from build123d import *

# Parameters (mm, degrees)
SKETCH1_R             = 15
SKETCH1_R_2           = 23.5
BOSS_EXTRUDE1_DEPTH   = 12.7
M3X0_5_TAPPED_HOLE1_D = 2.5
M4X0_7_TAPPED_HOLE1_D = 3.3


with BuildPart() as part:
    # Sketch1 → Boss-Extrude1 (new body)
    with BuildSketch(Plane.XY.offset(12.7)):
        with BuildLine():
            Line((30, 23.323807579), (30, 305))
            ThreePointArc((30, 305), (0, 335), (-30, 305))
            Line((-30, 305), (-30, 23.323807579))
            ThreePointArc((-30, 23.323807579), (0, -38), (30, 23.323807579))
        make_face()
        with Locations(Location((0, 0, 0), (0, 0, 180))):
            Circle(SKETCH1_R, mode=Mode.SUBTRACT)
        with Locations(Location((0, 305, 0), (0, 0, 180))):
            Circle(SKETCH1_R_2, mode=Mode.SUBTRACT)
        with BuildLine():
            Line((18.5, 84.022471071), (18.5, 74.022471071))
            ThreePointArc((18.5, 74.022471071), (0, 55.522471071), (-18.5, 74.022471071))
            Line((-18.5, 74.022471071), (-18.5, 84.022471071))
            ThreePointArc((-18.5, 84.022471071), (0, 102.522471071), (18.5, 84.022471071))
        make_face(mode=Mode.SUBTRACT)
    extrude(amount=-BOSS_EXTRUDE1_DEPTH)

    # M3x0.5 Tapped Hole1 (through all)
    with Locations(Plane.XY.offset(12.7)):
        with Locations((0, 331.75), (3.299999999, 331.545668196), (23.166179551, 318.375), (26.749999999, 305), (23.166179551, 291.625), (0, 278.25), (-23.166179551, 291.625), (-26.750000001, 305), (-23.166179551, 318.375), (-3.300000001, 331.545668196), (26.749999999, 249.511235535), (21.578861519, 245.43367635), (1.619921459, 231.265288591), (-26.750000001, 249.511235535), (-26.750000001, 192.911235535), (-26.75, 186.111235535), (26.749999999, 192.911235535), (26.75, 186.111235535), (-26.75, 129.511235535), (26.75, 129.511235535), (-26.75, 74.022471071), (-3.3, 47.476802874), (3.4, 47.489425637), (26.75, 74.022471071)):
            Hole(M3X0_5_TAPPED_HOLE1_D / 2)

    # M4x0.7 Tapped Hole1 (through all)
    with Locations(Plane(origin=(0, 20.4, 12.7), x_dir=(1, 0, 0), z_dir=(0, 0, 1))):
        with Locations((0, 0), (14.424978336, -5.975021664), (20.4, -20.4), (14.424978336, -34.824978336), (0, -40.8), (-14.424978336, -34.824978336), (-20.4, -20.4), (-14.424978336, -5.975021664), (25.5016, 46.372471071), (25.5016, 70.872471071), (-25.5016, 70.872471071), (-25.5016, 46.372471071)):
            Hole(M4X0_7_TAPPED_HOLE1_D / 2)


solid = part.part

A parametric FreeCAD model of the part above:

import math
import FreeCAD as App
import Part
import Sketcher
Q = App.Units.Quantity

doc = App.newDocument("Part")
body = doc.addObject("PartDesign::Body", "Body")

# Sketch on XY plane
sketch1 = doc.addObject("Sketcher::SketchObject", "Sketch")
body.addObject(sketch1)
sketch1.AttachmentSupport = (doc.XY_Plane, [""])
sketch1.MapMode = "FlatFace"
sketch1.AttachmentOffset = App.Placement(App.Vector(0, 0, 12.7), App.Rotation())
sketch1.addGeometry(Part.LineSegment(App.Vector(30, 23, 0), App.Vector(30, 305, 0)), False)
sketch1.addGeometry(Part.ArcOfCircle(Part.Circle(App.Vector(0, 305, 0), App.Vector(0, 0, 1), 30), math.radians(0), math.radians(180)), False)
sketch1.addGeometry(Part.LineSegment(App.Vector(-30, 305, 0), App.Vector(-30, 23, 0)), False)
sketch1.addGeometry(Part.ArcOfCircle(Part.Circle(App.Vector(0, 0, 0), App.Vector(0, 0, 1), 38), math.radians(142), math.radians(398)), False)
sketch1.addGeometry(Part.Circle(App.Vector(0, 0, 0), App.Vector(0, 0, 1), 15), False)
sketch1.addGeometry(Part.ArcOfCircle(Part.Circle(App.Vector(0, 84, 0), App.Vector(0, 0, 1), 18), math.radians(0), math.radians(180)), False)
sketch1.addGeometry(Part.LineSegment(App.Vector(18, 84, 0), App.Vector(18, 74, 0)), False)
sketch1.addGeometry(Part.ArcOfCircle(Part.Circle(App.Vector(0, 74, 0), App.Vector(0, 0, 1), 18), math.radians(180), math.radians(360)), False)
sketch1.addGeometry(Part.LineSegment(App.Vector(-18, 74, 0), App.Vector(-18, 84, 0)), False)
sketch1.addGeometry(Part.Circle(App.Vector(0, 305, 0), App.Vector(0, 0, 1), 24), False)
sketch1.addConstraint(Sketcher.Constraint("Tangent", 0, 2, 1, 1))
sketch1.addConstraint(Sketcher.Constraint("Tangent", 1, 2, 2, 1))
sketch1.addConstraint(Sketcher.Constraint("Coincident", 2, 2, 3, 1))
sketch1.addConstraint(Sketcher.Constraint("Coincident", 3, 2, 0, 1))
sketch1.addConstraint(Sketcher.Constraint("Tangent", 5, 1, 6, 1))
sketch1.addConstraint(Sketcher.Constraint("Tangent", 6, 2, 7, 2))
sketch1.addConstraint(Sketcher.Constraint("Tangent", 7, 1, 8, 1))
sketch1.addConstraint(Sketcher.Constraint("Tangent", 8, 2, 5, 2))
sketch1.addConstraint(Sketcher.Constraint("Vertical", 0))
sketch1.addConstraint(Sketcher.Constraint("Vertical", 2))
sketch1.addConstraint(Sketcher.Constraint("Vertical", 6))
sketch1.addConstraint(Sketcher.Constraint("Vertical", 8))
sketch1.addConstraint(Sketcher.Constraint("Coincident", 3, 3, -1, 1))
sketch1.addConstraint(Sketcher.Constraint("Coincident", 4, 3, -1, 1))
sketch1.addConstraint(Sketcher.Constraint("Coincident", 9, 3, 1, 3))
sketch1.addConstraint(Sketcher.Constraint("PointOnObject", 1, 3, -2))
sketch1.addConstraint(Sketcher.Constraint("PointOnObject", 5, 3, -2))
sketch1.addConstraint(Sketcher.Constraint("Diameter", 4, Q("30 mm")))
sketch1.addConstraint(Sketcher.Constraint("Diameter", 9, Q("47 mm")))
sketch1.addConstraint(Sketcher.Constraint("Radius", 1, Q("30 mm")))
sketch1.addConstraint(Sketcher.Constraint("Radius", 3, Q("38 mm")))
sketch1.addConstraint(Sketcher.Constraint("Radius", 5, Q("18.5 mm")))
sketch1.addConstraint(Sketcher.Constraint("DistanceY", 6, 2, 6, 1, Q("10 mm")))
sketch1.addConstraint(Sketcher.Constraint("DistanceY", -1, 1, 1, 3, Q("305 mm")))
sketch1.addConstraint(Sketcher.Constraint("DistanceY", -1, 1, 5, 3, Q("84.022471 mm")))
pad1 = doc.addObject("PartDesign::Pad", "Pad")
body.addObject(pad1)
pad1.Profile = sketch1
pad1.Length = 12.7
pad1.Reversed = True

# Sketch on XY plane
sketch2 = doc.addObject("Sketcher::SketchObject", "Sketch001")
body.addObject(sketch2)
sketch2.AttachmentSupport = (doc.XY_Plane, [""])
sketch2.MapMode = "FlatFace"
sketch2.AttachmentOffset = App.Placement(App.Vector(0, 0, 12.7), App.Rotation())
sketch2.addGeometry(Part.Circle(App.Vector(0, 331.8, 0), App.Vector(0, 0, 1), 1.2), False)
sketch2.addGeometry(Part.Circle(App.Vector(3.3, 331.5, 0), App.Vector(0, 0, 1), 1.2), False)
sketch2.addGeometry(Part.Circle(App.Vector(23.2, 318.4, 0), App.Vector(0, 0, 1), 1.2), False)
sketch2.addGeometry(Part.Circle(App.Vector(26.7, 305, 0), App.Vector(0, 0, 1), 1.2), False)
sketch2.addGeometry(Part.Circle(App.Vector(23.2, 291.6, 0), App.Vector(0, 0, 1), 1.2), False)
sketch2.addGeometry(Part.Circle(App.Vector(0, 278.2, 0), App.Vector(0, 0, 1), 1.2), False)
sketch2.addGeometry(Part.Circle(App.Vector(-23.2, 291.6, 0), App.Vector(0, 0, 1), 1.2), False)
sketch2.addGeometry(Part.Circle(App.Vector(-26.8, 305, 0), App.Vector(0, 0, 1), 1.2), False)
sketch2.addGeometry(Part.Circle(App.Vector(-23.2, 318.4, 0), App.Vector(0, 0, 1), 1.2), False)
sketch2.addGeometry(Part.Circle(App.Vector(-3.3, 331.5, 0), App.Vector(0, 0, 1), 1.2), False)
sketch2.addGeometry(Part.Circle(App.Vector(26.7, 249.5, 0), App.Vector(0, 0, 1), 1.2), False)
sketch2.addGeometry(Part.Circle(App.Vector(21.6, 245.4, 0), App.Vector(0, 0, 1), 1.2), False)
sketch2.addGeometry(Part.Circle(App.Vector(1.6, 231.3, 0), App.Vector(0, 0, 1), 1.2), False)
sketch2.addGeometry(Part.Circle(App.Vector(-26.8, 249.5, 0), App.Vector(0, 0, 1), 1.2), False)
sketch2.addGeometry(Part.Circle(App.Vector(-26.8, 192.9, 0), App.Vector(0, 0, 1), 1.2), False)
sketch2.addGeometry(Part.Circle(App.Vector(-26.8, 186.1, 0), App.Vector(0, 0, 1), 1.2), False)
sketch2.addGeometry(Part.Circle(App.Vector(26.7, 192.9, 0), App.Vector(0, 0, 1), 1.2), False)
sketch2.addGeometry(Part.Circle(App.Vector(26.8, 186.1, 0), App.Vector(0, 0, 1), 1.2), False)
sketch2.addGeometry(Part.Circle(App.Vector(-26.8, 129.5, 0), App.Vector(0, 0, 1), 1.2), False)
sketch2.addGeometry(Part.Circle(App.Vector(26.8, 129.5, 0), App.Vector(0, 0, 1), 1.2), False)
sketch2.addGeometry(Part.Circle(App.Vector(-26.8, 74, 0), App.Vector(0, 0, 1), 1.2), False)
sketch2.addGeometry(Part.Circle(App.Vector(-3.3, 47.5, 0), App.Vector(0, 0, 1), 1.2), False)
sketch2.addGeometry(Part.Circle(App.Vector(3.4, 47.5, 0), App.Vector(0, 0, 1), 1.2), False)
sketch2.addGeometry(Part.Circle(App.Vector(26.8, 74, 0), App.Vector(0, 0, 1), 1.2), False)
sketch2.addConstraint(Sketcher.Constraint("Equal", 0, 1))
sketch2.addConstraint(Sketcher.Constraint("Equal", 1, 2))
sketch2.addConstraint(Sketcher.Constraint("Equal", 2, 3))
sketch2.addConstraint(Sketcher.Constraint("Equal", 3, 4))
sketch2.addConstraint(Sketcher.Constraint("Equal", 4, 5))
sketch2.addConstraint(Sketcher.Constraint("Equal", 5, 6))
sketch2.addConstraint(Sketcher.Constraint("Equal", 6, 7))
sketch2.addConstraint(Sketcher.Constraint("Equal", 7, 8))
sketch2.addConstraint(Sketcher.Constraint("Equal", 8, 9))
sketch2.addConstraint(Sketcher.Constraint("Equal", 9, 10))
sketch2.addConstraint(Sketcher.Constraint("Equal", 10, 11))
sketch2.addConstraint(Sketcher.Constraint("Equal", 11, 12))
sketch2.addConstraint(Sketcher.Constraint("Equal", 12, 13))
sketch2.addConstraint(Sketcher.Constraint("Equal", 13, 14))
sketch2.addConstraint(Sketcher.Constraint("Equal", 14, 15))
sketch2.addConstraint(Sketcher.Constraint("Equal", 15, 16))
sketch2.addConstraint(Sketcher.Constraint("Equal", 16, 17))
sketch2.addConstraint(Sketcher.Constraint("Equal", 17, 18))
sketch2.addConstraint(Sketcher.Constraint("Equal", 18, 19))
sketch2.addConstraint(Sketcher.Constraint("Equal", 19, 20))
sketch2.addConstraint(Sketcher.Constraint("Equal", 20, 21))
sketch2.addConstraint(Sketcher.Constraint("Equal", 21, 22))
sketch2.addConstraint(Sketcher.Constraint("Equal", 22, 23))
sketch2.addConstraint(Sketcher.Constraint("Symmetric", 4, 3, 6, 3, -2))
sketch2.addConstraint(Sketcher.Constraint("Symmetric", 3, 3, 7, 3, -2))
sketch2.addConstraint(Sketcher.Constraint("Symmetric", 2, 3, 8, 3, -2))
sketch2.addConstraint(Sketcher.Constraint("Symmetric", 1, 3, 9, 3, -2))
sketch2.addConstraint(Sketcher.Constraint("Symmetric", 10, 3, 13, 3, -2))
sketch2.addConstraint(Sketcher.Constraint("Symmetric", 14, 3, 16, 3, -2))
sketch2.addConstraint(Sketcher.Constraint("Symmetric", 15, 3, 17, 3, -2))
sketch2.addConstraint(Sketcher.Constraint("Symmetric", 18, 3, 19, 3, -2))
sketch2.addConstraint(Sketcher.Constraint("Symmetric", 20, 3, 23, 3, -2))
sketch2.addConstraint(Sketcher.Constraint("PointOnObject", 0, 3, -2))
sketch2.addConstraint(Sketcher.Constraint("PointOnObject", 5, 3, -2))
sketch2.addConstraint(Sketcher.Constraint("Vertical", 2, 3, 4, 3))
sketch2.addConstraint(Sketcher.Constraint("Vertical", 3, 3, 10, 3))
sketch2.addConstraint(Sketcher.Constraint("Vertical", 13, 3, 14, 3))
sketch2.addConstraint(Sketcher.Constraint("Vertical", 14, 3, 15, 3))
sketch2.addConstraint(Sketcher.Constraint("Vertical", 15, 3, 18, 3))
sketch2.addConstraint(Sketcher.Constraint("Vertical", 18, 3, 20, 3))
sketch2.addConstraint(Sketcher.Constraint("Vertical", 9, 3, 21, 3))
sketch2.addConstraint(Sketcher.Constraint("Diameter", 0, Q("2.5 mm")))
sketch2.addConstraint(Sketcher.Constraint("DistanceY", -1, 1, 3, 3, Q("305 mm")))
sketch2.addConstraint(Sketcher.Constraint("DistanceX", -1, 1, 1, 3, Q("3.3 mm")))
sketch2.addConstraint(Sketcher.Constraint("DistanceX", -1, 1, 22, 3, Q("3.4 mm")))
sketch2.addConstraint(Sketcher.Constraint("DistanceY", 5, 3, 0, 3, Q("53.5 mm")))
sketch2.addConstraint(Sketcher.Constraint("DistanceX", 13, 3, 10, 3, Q("53.5 mm")))
sketch2.addConstraint(Sketcher.Constraint("DistanceY", 14, 3, 13, 3, Q("56.6 mm")))
sketch2.addConstraint(Sketcher.Constraint("DistanceY", 15, 3, 14, 3, Q("6.8 mm")))
sketch2.addConstraint(Sketcher.Constraint("DistanceY", 18, 3, 15, 3, Q("56.6 mm")))
sketch2.addConstraint(Sketcher.Constraint("DistanceY", -1, 1, 0, 3, Q("331.75 mm")))
sketch2.addConstraint(Sketcher.Constraint("DistanceY", 4, 3, 2, 3, Q("26.75 mm")))
sketch2.addConstraint(Sketcher.Constraint("DistanceY", -1, 1, 2, 3, Q("318.375 mm")))
sketch2.addConstraint(Sketcher.Constraint("DistanceX", 6, 3, 12, 3, Q("24.786101 mm")))
sketch2.addConstraint(Sketcher.Constraint("DistanceY", -1, 1, 1, 3, Q("331.545668 mm")))
sketch2.addConstraint(Sketcher.Constraint("DistanceX", -1, 1, 2, 3, Q("23.16618 mm")))
sketch2.addConstraint(Sketcher.Constraint("DistanceX", -1, 1, 11, 3, Q("21.578862 mm")))
sketch2.addConstraint(Sketcher.Constraint("DistanceY", -1, 1, 12, 3, Q("231.265289 mm")))
sketch2.addConstraint(Sketcher.Constraint("DistanceY", -1, 1, 20, 3, Q("74.022471 mm")))
sketch2.addConstraint(Sketcher.Constraint("DistanceY", 11, 3, 10, 3, Q("4.077559 mm")))
sketch2.addConstraint(Sketcher.Constraint("DistanceY", 21, 3, 20, 3, Q("26.545668 mm")))
sketch2.addConstraint(Sketcher.Constraint("DistanceY", 22, 3, 19, 3, Q("82.02181 mm")))
sketch2.addConstraint(Sketcher.Constraint("DistanceY", -1, 1, 10, 3, Q("249.511236 mm")))
doc.recompute()
hole = doc.addObject("PartDesign::Hole", "Hole")
body.addObject(hole)
hole.Profile = sketch2
hole.ThreadType = "None"
hole.Diameter = 2.5
hole.DepthType = "ThroughAll"

# Sketch on XY plane
sketch3 = doc.addObject("Sketcher::SketchObject", "Sketch002")
body.addObject(sketch3)
sketch3.AttachmentSupport = (doc.XY_Plane, [""])
sketch3.MapMode = "FlatFace"
sketch3.AttachmentOffset = App.Placement(App.Vector(0, 0, 12.7), App.Rotation())
sketch3.addGeometry(Part.Circle(App.Vector(0, 20.4, 0), App.Vector(0, 0, 1), 1.6), False)
sketch3.addGeometry(Part.Circle(App.Vector(14.4, 14.4, 0), App.Vector(0, 0, 1), 1.6), False)
sketch3.addGeometry(Part.Circle(App.Vector(20.4, 0, 0), App.Vector(0, 0, 1), 1.6), False)
sketch3.addGeometry(Part.Circle(App.Vector(14.4, -14.4, 0), App.Vector(0, 0, 1), 1.6), False)
sketch3.addGeometry(Part.Circle(App.Vector(0, -20.4, 0), App.Vector(0, 0, 1), 1.6), False)
sketch3.addGeometry(Part.Circle(App.Vector(-14.4, -14.4, 0), App.Vector(0, 0, 1), 1.6), False)
sketch3.addGeometry(Part.Circle(App.Vector(-20.4, 0, 0), App.Vector(0, 0, 1), 1.6), False)
sketch3.addGeometry(Part.Circle(App.Vector(-14.4, 14.4, 0), App.Vector(0, 0, 1), 1.6), False)
sketch3.addGeometry(Part.Circle(App.Vector(25.5, 66.8, 0), App.Vector(0, 0, 1), 1.6), False)
sketch3.addGeometry(Part.Circle(App.Vector(25.5, 91.3, 0), App.Vector(0, 0, 1), 1.6), False)
sketch3.addGeometry(Part.Circle(App.Vector(-25.5, 91.3, 0), App.Vector(0, 0, 1), 1.6), False)
sketch3.addGeometry(Part.Circle(App.Vector(-25.5, 66.8, 0), App.Vector(0, 0, 1), 1.6), False)
sketch3.addConstraint(Sketcher.Constraint("Equal", 0, 1))
sketch3.addConstraint(Sketcher.Constraint("Equal", 1, 2))
sketch3.addConstraint(Sketcher.Constraint("Equal", 2, 3))
sketch3.addConstraint(Sketcher.Constraint("Equal", 3, 4))
sketch3.addConstraint(Sketcher.Constraint("Equal", 4, 5))
sketch3.addConstraint(Sketcher.Constraint("Equal", 5, 6))
sketch3.addConstraint(Sketcher.Constraint("Equal", 6, 7))
sketch3.addConstraint(Sketcher.Constraint("Equal", 7, 8))
sketch3.addConstraint(Sketcher.Constraint("Equal", 8, 9))
sketch3.addConstraint(Sketcher.Constraint("Equal", 9, 10))
sketch3.addConstraint(Sketcher.Constraint("Equal", 10, 11))
sketch3.addConstraint(Sketcher.Constraint("Symmetric", 0, 3, 4, 3, -1, 1))
sketch3.addConstraint(Sketcher.Constraint("Symmetric", 1, 3, 5, 3, -1, 1))
sketch3.addConstraint(Sketcher.Constraint("Symmetric", 2, 3, 6, 3, -1, 1))
sketch3.addConstraint(Sketcher.Constraint("Symmetric", 3, 3, 7, 3, -1, 1))
sketch3.addConstraint(Sketcher.Constraint("Symmetric", 3, 3, 5, 3, -2))
sketch3.addConstraint(Sketcher.Constraint("Symmetric", 9, 3, 10, 3, -2))
sketch3.addConstraint(Sketcher.Constraint("Symmetric", 8, 3, 11, 3, -2))
sketch3.addConstraint(Sketcher.Constraint("PointOnObject", 0, 3, -2))
sketch3.addConstraint(Sketcher.Constraint("PointOnObject", 2, 3, -1))
sketch3.addConstraint(Sketcher.Constraint("Vertical", 8, 3, 9, 3))
sketch3.addConstraint(Sketcher.Constraint("Diameter", 0, Q("3.3 mm")))
sketch3.addConstraint(Sketcher.Constraint("DistanceY", -1, 1, 0, 3, Q("20.4 mm")))
sketch3.addConstraint(Sketcher.Constraint("DistanceX", -1, 1, 2, 3, Q("20.4 mm")))
sketch3.addConstraint(Sketcher.Constraint("DistanceY", 8, 3, 9, 3, Q("24.5 mm")))
sketch3.addConstraint(Sketcher.Constraint("DistanceX", -1, 1, 8, 3, Q("25.5016 mm")))
sketch3.addConstraint(Sketcher.Constraint("DistanceX", -1, 1, 1, 3, Q("14.424978 mm")))
sketch3.addConstraint(Sketcher.Constraint("DistanceY", -1, 1, 1, 3, Q("14.424978 mm")))
sketch3.addConstraint(Sketcher.Constraint("DistanceY", -1, 1, 8, 3, Q("66.772471 mm")))
doc.recompute()
hole2 = doc.addObject("PartDesign::Hole", "Hole001")
body.addObject(hole2)
hole2.Profile = sketch3
hole2.ThreadType = "None"
hole2.Diameter = 3.3
hole2.DepthType = "ThroughAll"

doc.recompute()
